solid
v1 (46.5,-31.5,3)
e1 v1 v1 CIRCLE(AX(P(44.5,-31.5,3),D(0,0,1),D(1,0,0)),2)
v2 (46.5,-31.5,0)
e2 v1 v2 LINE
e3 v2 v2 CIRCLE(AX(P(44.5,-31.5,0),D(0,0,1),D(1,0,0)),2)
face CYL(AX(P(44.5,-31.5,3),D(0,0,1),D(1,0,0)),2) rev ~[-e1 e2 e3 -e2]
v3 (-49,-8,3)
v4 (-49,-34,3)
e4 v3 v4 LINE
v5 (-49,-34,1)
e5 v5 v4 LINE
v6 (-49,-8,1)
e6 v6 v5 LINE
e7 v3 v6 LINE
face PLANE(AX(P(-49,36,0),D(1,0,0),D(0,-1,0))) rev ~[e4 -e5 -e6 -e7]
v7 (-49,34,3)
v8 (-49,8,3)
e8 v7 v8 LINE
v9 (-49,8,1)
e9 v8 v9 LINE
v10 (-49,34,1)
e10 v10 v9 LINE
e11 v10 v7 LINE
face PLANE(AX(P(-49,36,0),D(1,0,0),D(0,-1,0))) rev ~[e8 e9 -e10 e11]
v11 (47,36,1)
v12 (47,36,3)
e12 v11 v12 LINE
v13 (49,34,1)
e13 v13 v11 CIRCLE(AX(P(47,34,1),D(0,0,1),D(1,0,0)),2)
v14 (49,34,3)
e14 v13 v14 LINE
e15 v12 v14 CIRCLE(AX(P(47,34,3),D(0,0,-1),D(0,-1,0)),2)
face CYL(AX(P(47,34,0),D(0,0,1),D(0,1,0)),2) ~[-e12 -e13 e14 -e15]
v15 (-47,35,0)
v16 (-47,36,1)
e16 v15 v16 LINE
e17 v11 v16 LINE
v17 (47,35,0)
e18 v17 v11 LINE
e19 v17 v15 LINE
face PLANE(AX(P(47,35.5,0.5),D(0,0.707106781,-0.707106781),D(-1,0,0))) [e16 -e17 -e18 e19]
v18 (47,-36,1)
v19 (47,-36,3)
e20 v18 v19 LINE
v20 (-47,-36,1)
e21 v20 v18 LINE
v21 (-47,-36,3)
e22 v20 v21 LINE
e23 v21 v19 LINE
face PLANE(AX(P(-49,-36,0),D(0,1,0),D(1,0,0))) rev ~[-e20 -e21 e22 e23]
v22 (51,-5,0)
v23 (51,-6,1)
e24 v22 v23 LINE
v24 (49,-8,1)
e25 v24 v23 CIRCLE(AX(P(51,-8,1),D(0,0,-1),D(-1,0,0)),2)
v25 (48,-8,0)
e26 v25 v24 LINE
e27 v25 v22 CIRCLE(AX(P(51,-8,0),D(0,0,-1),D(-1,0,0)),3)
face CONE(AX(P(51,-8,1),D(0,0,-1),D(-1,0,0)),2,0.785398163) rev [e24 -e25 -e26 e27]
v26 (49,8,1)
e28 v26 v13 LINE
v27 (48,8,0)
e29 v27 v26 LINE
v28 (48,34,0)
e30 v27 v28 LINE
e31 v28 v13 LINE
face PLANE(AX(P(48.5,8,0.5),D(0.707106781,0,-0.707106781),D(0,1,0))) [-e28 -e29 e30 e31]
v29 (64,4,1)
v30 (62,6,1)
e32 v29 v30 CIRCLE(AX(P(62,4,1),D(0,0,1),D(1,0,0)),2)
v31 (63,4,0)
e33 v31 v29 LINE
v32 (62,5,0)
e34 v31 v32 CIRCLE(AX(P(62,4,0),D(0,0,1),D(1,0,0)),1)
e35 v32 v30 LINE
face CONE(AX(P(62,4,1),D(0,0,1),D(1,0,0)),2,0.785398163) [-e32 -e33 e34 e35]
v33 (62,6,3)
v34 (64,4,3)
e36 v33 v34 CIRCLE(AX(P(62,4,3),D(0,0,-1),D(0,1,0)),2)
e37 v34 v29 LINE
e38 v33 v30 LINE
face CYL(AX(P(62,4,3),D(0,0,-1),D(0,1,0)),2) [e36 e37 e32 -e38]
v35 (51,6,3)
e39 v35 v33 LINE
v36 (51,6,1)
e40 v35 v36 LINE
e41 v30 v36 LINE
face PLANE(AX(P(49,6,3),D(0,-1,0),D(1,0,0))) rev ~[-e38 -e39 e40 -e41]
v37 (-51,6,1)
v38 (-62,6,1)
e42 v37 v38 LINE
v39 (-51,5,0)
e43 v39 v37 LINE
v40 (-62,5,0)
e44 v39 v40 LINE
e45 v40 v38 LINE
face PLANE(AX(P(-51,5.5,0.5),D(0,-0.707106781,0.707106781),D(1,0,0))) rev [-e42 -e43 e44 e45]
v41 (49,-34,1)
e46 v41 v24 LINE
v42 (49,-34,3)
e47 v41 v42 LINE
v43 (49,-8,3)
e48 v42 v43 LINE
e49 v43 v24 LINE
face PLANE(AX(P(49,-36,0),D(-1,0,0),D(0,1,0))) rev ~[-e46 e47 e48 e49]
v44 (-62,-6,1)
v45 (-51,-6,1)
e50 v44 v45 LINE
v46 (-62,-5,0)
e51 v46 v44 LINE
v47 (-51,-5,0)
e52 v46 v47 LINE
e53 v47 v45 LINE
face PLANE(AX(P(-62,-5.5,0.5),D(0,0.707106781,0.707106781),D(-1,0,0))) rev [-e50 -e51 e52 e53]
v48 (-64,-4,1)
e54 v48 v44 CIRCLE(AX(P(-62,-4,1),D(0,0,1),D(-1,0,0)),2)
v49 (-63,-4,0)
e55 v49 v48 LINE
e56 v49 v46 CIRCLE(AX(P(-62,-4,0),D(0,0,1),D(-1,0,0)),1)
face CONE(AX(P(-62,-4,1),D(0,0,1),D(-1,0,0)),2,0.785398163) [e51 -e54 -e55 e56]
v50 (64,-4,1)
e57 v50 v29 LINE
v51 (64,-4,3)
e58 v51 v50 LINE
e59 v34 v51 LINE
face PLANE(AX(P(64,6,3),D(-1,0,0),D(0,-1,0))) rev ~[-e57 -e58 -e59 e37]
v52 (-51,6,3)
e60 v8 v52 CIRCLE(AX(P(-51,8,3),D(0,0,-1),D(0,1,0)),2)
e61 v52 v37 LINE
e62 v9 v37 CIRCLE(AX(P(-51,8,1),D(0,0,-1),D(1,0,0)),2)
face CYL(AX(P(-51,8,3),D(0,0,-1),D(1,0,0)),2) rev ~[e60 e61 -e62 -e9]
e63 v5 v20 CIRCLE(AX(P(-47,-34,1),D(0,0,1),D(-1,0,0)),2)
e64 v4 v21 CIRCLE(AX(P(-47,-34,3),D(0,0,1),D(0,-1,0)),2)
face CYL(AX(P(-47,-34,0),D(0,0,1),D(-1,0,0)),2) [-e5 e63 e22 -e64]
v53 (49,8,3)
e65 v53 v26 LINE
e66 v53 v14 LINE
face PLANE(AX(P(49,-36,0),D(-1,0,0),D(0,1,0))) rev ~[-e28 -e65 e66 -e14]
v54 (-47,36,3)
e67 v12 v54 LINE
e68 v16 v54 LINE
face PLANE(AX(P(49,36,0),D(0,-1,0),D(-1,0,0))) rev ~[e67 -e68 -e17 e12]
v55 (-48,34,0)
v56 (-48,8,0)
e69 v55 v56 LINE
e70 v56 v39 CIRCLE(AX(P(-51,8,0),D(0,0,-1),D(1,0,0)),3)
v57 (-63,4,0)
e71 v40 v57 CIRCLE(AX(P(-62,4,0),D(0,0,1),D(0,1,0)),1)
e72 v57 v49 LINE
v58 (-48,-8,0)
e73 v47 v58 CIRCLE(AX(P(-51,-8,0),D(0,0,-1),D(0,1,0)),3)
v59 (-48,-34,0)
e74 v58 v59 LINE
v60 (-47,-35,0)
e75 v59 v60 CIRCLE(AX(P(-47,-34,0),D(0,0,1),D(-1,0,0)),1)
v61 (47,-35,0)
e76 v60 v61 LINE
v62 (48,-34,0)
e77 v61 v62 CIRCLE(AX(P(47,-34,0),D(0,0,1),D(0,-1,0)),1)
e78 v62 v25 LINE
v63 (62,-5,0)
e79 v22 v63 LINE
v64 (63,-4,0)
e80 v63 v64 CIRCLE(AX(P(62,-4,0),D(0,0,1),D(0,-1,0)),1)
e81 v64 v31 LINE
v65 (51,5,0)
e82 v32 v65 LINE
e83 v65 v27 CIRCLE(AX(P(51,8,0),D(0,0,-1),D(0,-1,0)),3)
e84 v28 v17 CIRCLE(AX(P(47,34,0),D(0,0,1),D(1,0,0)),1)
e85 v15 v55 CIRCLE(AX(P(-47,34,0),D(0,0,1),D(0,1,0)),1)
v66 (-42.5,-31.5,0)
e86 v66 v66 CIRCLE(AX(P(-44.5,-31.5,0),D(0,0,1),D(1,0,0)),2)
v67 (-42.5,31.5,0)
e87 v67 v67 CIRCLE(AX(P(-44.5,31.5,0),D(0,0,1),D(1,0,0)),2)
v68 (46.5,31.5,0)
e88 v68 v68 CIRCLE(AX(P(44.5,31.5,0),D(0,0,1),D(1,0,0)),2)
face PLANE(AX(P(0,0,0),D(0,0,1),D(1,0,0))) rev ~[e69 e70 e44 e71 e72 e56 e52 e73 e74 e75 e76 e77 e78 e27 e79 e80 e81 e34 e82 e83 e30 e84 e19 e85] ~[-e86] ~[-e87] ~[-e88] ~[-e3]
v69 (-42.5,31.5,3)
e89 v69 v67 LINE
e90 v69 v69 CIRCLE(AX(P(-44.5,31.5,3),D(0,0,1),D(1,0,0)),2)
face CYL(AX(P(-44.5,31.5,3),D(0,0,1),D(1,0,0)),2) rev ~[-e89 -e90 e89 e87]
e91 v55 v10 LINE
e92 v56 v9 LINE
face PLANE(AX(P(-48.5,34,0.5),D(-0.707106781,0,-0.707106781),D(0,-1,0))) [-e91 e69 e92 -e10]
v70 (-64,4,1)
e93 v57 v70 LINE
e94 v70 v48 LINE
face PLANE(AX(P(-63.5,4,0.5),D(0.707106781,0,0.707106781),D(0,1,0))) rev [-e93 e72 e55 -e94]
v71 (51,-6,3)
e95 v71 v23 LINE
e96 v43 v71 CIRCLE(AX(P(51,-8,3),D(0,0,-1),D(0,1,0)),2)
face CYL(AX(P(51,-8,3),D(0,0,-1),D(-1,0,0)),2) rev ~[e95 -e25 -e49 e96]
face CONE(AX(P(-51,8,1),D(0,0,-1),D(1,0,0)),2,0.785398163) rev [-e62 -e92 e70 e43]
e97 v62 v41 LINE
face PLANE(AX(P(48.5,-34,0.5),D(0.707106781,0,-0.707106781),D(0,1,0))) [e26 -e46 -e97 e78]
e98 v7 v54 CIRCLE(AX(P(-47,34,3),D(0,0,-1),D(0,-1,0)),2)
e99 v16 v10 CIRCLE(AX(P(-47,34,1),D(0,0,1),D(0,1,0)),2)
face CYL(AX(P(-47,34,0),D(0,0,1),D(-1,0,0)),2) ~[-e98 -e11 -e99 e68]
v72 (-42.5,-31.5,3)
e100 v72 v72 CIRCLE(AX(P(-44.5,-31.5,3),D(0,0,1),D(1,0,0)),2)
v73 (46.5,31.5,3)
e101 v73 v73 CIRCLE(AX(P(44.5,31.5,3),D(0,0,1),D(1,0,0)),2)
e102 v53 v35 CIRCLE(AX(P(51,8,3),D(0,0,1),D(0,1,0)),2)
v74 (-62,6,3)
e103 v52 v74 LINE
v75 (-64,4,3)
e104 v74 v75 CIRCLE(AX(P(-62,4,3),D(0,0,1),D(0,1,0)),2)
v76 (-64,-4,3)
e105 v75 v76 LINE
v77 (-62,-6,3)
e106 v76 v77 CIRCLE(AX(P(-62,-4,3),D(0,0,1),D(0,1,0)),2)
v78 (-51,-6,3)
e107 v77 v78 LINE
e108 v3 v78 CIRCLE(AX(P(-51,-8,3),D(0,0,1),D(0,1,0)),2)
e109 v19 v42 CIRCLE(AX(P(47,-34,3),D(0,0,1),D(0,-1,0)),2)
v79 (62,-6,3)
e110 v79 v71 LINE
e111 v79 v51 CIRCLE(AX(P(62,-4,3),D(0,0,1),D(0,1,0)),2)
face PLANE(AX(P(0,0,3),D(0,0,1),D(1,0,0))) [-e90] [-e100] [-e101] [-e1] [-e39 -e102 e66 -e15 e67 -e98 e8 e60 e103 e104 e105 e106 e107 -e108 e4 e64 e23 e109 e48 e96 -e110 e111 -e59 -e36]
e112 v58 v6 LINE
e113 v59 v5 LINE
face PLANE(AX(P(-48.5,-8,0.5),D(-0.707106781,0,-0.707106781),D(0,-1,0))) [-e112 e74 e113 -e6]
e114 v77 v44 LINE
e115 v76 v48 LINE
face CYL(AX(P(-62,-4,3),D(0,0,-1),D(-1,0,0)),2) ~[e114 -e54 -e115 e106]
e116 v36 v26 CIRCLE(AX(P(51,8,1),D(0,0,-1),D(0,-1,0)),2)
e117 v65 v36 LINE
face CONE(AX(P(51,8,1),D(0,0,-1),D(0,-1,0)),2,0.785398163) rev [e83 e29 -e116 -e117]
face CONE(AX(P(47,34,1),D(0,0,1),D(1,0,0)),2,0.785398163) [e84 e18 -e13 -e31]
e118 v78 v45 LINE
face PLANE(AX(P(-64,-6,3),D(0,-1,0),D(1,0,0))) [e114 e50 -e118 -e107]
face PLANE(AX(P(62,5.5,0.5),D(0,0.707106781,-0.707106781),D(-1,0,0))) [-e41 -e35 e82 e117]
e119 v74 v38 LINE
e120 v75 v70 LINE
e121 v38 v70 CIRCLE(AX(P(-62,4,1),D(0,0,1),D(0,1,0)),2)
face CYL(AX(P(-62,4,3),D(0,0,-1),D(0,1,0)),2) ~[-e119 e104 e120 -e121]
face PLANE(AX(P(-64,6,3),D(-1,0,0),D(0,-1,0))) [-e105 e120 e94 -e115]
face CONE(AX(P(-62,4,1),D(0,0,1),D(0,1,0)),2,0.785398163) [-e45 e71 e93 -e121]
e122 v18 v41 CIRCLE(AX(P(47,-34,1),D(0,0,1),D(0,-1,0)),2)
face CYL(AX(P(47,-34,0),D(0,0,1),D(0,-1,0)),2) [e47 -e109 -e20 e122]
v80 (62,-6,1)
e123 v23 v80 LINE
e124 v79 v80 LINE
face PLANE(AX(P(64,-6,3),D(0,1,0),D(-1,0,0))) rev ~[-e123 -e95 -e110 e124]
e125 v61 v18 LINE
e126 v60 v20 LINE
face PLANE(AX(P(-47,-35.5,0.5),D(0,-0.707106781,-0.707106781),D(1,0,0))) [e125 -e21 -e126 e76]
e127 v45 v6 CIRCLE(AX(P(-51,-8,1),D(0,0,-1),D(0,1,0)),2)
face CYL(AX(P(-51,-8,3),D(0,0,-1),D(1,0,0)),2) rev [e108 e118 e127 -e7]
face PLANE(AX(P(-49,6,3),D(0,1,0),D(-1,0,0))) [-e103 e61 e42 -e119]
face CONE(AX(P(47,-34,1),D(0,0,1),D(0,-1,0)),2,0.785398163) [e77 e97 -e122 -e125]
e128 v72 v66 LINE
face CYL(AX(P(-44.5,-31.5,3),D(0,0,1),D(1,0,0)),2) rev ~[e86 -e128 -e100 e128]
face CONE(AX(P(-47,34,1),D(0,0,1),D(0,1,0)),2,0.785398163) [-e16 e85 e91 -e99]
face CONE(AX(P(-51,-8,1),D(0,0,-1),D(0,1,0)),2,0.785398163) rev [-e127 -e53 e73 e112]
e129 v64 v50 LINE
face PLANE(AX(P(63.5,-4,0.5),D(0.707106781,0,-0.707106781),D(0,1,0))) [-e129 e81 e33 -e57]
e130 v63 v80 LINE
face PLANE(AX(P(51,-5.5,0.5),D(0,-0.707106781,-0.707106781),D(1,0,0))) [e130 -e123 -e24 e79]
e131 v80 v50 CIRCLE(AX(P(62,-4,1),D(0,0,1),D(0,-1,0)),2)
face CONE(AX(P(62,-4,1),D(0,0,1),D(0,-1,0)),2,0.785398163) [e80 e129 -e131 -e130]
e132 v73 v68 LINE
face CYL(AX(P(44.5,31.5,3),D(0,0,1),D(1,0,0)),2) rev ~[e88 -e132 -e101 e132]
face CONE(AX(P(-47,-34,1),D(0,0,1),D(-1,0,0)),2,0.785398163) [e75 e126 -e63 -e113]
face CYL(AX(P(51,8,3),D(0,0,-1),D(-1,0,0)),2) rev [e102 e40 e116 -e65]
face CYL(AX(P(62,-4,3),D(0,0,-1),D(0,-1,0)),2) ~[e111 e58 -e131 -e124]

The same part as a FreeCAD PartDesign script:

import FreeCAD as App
import Part
import Sketcher
from FreeCAD import Vector
Q = App.Units.Quantity


def edges_at(feature, points):
    """Names of the edges that pass closest to the given points."""
    edges = feature.Shape.Edges
    near = lambda p: min(range(len(edges)), key=lambda i: edges[i].distToShape(Part.Vertex(*p))[0])
    return sorted({f"Edge{near(p) + 1}" for p in points})


def add_polygon(sketch, points):
    """Adds a closed chain of lines whose ends are joined by coincident constraints."""
    first, n = sketch.GeometryCount, len(points)
    for a, b in zip(points, points[1:] + points[:1]):
        sketch.addGeometry(Part.LineSegment(App.Vector(*a, 0), App.Vector(*b, 0)), False)
    for i in range(n):
        sketch.addConstraint(Sketcher.Constraint("Coincident", first + i, 2, first + (i + 1) % n, 1))

doc = App.newDocument("Part")
body = doc.addObject("PartDesign::Body", "Body")

# Sketch on XY plane
sketch1 = doc.addObject("Sketcher::SketchObject", "Sketch")
body.addObject(sketch1)
sketch1.AttachmentSupport = (doc.XY_Plane, [""])
sketch1.MapMode = "FlatFace"
add_polygon(sketch1, [(-49, 36), (-49, -36), (49, -36), (49, 36)])  # lines 0-3
sketch1.addConstraint([
    Sketcher.Constraint("Vertical", 0),
    Sketcher.Constraint("Horizontal", 1),
    Sketcher.Constraint("Vertical", 2),
    Sketcher.Constraint("Horizontal", 3),
    Sketcher.Constraint("Symmetric", 0, 2, 2, 2, -1, 1),
    Sketcher.Constraint("DistanceX", 1, 1, 1, 2, Q("98 mm")),
    Sketcher.Constraint("DistanceY", 0, 2, 0, 1, Q("72 mm")),
])
pad1 = doc.addObject("PartDesign::Pad", "Pad")
body.addObject(pad1)
pad1.Profile = sketch1
pad1.Length = 3

# Sketch on XY plane
sketch2 = doc.addObject("Sketcher::SketchObject", "Sketch001")
body.addObject(sketch2)
sketch2.AttachmentSupport = (doc.XY_Plane, [""])
sketch2.MapMode = "FlatFace"
sketch2.AttachmentOffset = App.Placement(Vector(0, 0, 3), App.Rotation())
sketch2.addGeometry([
    Part.Circle(Vector(-44.5, 31.5, 0), Vector(0, 0, 1), 2),
    Part.Circle(Vector(44.5, 31.5, 0), Vector(0, 0, 1), 2),
    Part.Circle(Vector(-44.5, -31.5, 0), Vector(0, 0, 1), 2),
    Part.Circle(Vector(44.5, -31.5, 0), Vector(0, 0, 1), 2),
], False)
sketch2.addConstraint([
    Sketcher.Constraint("Equal", 0, 1),
    Sketcher.Constraint("Equal", 1, 2),
    Sketcher.Constraint("Equal", 2, 3),
    Sketcher.Constraint("Symmetric", 1, 3, 2, 3, -1, 1),
    Sketcher.Constraint("Symmetric", 0, 3, 3, 3, -1, 1),
    Sketcher.Constraint("Symmetric", 0, 3, 1, 3, -2),
    Sketcher.Constraint("Diameter", 0, Q("4 mm")),
    Sketcher.Constraint("DistanceX", 0, 3, 1, 3, Q("89 mm")),
    Sketcher.Constraint("DistanceY", 2, 3, 0, 3, Q("63 mm")),
])
pocket1 = doc.addObject("PartDesign::Pocket", "Pocket")
body.addObject(pocket1)
pocket1.Profile = sketch2
pocket1.Type = "ThroughAll"

# Sketch on XY plane
sketch3 = doc.addObject("Sketcher::SketchObject", "Sketch002")
body.addObject(sketch3)
sketch3.AttachmentSupport = (doc.XY_Plane, [""])
sketch3.MapMode = "FlatFace"
sketch3.AttachmentOffset = App.Placement(Vector(0, 0, 3), App.Rotation())
add_polygon(sketch3, [(-64, 6), (-64, -6), (-49, -6), (-49, 6)])  # lines 0-3
add_polygon(sketch3, [(49, -6), (64, -6), (64, 6), (49, 6)])  # lines 4-7
sketch3.addConstraint([
    Sketcher.Constraint("Vertical", 0),
    Sketcher.Constraint("Horizontal", 1),
    Sketcher.Constraint("Vertical", 2),
    Sketcher.Constraint("Horizontal", 3),
    Sketcher.Constraint("Horizontal", 4),
    Sketcher.Constraint("Vertical", 5),
    Sketcher.Constraint("Horizontal", 6),
    Sketcher.Constraint("Vertical", 7),
    Sketcher.Constraint("Symmetric", 3, 2, 4, 2, -1, 1),
    Sketcher.Constraint("Symmetric", 1, 2, 6, 2, -1, 1),
    Sketcher.Constraint("Horizontal", 1, 2, 4, 2),
    Sketcher.Constraint("DistanceX", 1, 1, 1, 2, Q("15 mm")),
    Sketcher.Constraint("DistanceY", 0, 2, 0, 1, Q("12 mm")),
    Sketcher.Constraint("DistanceX", 0, 2, -1, 1, Q("64 mm")),
])
pad2 = doc.addObject("PartDesign::Pad", "Pad001")
body.addObject(pad2)
pad2.Profile = sketch3
pad2.Length = 3
pad2.Reversed = True
doc.recompute()

fillet = doc.addObject("PartDesign::Fillet", "Fillet")
body.addObject(fillet)
fillet.Base = (pad2, edges_at(pad2, [
    (-49, 6, 1.5),
    (-49, -6, 1.5),
    (49, -6, 1.5),
    (49, 6, 1.5),
    (49, 36, 1.5),
    (-49, 36, 1.5),
    (-49, -36, 1.5),
    (-64, -6, 1.5),
    (-64, 6, 1.5),
    (49, -36, 1.5),
    (64, -6, 1.5),
    (64, 6, 1.5),
]))
fillet.Radius = 2
doc.recompute()

chamfer = doc.addObject("PartDesign::Chamfer", "Chamfer")
body.addObject(chamfer)
chamfer.Base = (fillet, edges_at(fillet, [
    (0, 36, 0),
    (-48.414, 35.414, 0),
    (-49, 21, 0),
    (-49, -21, 0),
    (-48.414, -35.414, 0),
    (0, -36, 0),
    (48.414, -35.414, 0),
    (49, -21, 0),
    (49, 21, 0),
    (48.414, 35.414, 0),
]))
chamfer.Size = 1

doc.recompute()
